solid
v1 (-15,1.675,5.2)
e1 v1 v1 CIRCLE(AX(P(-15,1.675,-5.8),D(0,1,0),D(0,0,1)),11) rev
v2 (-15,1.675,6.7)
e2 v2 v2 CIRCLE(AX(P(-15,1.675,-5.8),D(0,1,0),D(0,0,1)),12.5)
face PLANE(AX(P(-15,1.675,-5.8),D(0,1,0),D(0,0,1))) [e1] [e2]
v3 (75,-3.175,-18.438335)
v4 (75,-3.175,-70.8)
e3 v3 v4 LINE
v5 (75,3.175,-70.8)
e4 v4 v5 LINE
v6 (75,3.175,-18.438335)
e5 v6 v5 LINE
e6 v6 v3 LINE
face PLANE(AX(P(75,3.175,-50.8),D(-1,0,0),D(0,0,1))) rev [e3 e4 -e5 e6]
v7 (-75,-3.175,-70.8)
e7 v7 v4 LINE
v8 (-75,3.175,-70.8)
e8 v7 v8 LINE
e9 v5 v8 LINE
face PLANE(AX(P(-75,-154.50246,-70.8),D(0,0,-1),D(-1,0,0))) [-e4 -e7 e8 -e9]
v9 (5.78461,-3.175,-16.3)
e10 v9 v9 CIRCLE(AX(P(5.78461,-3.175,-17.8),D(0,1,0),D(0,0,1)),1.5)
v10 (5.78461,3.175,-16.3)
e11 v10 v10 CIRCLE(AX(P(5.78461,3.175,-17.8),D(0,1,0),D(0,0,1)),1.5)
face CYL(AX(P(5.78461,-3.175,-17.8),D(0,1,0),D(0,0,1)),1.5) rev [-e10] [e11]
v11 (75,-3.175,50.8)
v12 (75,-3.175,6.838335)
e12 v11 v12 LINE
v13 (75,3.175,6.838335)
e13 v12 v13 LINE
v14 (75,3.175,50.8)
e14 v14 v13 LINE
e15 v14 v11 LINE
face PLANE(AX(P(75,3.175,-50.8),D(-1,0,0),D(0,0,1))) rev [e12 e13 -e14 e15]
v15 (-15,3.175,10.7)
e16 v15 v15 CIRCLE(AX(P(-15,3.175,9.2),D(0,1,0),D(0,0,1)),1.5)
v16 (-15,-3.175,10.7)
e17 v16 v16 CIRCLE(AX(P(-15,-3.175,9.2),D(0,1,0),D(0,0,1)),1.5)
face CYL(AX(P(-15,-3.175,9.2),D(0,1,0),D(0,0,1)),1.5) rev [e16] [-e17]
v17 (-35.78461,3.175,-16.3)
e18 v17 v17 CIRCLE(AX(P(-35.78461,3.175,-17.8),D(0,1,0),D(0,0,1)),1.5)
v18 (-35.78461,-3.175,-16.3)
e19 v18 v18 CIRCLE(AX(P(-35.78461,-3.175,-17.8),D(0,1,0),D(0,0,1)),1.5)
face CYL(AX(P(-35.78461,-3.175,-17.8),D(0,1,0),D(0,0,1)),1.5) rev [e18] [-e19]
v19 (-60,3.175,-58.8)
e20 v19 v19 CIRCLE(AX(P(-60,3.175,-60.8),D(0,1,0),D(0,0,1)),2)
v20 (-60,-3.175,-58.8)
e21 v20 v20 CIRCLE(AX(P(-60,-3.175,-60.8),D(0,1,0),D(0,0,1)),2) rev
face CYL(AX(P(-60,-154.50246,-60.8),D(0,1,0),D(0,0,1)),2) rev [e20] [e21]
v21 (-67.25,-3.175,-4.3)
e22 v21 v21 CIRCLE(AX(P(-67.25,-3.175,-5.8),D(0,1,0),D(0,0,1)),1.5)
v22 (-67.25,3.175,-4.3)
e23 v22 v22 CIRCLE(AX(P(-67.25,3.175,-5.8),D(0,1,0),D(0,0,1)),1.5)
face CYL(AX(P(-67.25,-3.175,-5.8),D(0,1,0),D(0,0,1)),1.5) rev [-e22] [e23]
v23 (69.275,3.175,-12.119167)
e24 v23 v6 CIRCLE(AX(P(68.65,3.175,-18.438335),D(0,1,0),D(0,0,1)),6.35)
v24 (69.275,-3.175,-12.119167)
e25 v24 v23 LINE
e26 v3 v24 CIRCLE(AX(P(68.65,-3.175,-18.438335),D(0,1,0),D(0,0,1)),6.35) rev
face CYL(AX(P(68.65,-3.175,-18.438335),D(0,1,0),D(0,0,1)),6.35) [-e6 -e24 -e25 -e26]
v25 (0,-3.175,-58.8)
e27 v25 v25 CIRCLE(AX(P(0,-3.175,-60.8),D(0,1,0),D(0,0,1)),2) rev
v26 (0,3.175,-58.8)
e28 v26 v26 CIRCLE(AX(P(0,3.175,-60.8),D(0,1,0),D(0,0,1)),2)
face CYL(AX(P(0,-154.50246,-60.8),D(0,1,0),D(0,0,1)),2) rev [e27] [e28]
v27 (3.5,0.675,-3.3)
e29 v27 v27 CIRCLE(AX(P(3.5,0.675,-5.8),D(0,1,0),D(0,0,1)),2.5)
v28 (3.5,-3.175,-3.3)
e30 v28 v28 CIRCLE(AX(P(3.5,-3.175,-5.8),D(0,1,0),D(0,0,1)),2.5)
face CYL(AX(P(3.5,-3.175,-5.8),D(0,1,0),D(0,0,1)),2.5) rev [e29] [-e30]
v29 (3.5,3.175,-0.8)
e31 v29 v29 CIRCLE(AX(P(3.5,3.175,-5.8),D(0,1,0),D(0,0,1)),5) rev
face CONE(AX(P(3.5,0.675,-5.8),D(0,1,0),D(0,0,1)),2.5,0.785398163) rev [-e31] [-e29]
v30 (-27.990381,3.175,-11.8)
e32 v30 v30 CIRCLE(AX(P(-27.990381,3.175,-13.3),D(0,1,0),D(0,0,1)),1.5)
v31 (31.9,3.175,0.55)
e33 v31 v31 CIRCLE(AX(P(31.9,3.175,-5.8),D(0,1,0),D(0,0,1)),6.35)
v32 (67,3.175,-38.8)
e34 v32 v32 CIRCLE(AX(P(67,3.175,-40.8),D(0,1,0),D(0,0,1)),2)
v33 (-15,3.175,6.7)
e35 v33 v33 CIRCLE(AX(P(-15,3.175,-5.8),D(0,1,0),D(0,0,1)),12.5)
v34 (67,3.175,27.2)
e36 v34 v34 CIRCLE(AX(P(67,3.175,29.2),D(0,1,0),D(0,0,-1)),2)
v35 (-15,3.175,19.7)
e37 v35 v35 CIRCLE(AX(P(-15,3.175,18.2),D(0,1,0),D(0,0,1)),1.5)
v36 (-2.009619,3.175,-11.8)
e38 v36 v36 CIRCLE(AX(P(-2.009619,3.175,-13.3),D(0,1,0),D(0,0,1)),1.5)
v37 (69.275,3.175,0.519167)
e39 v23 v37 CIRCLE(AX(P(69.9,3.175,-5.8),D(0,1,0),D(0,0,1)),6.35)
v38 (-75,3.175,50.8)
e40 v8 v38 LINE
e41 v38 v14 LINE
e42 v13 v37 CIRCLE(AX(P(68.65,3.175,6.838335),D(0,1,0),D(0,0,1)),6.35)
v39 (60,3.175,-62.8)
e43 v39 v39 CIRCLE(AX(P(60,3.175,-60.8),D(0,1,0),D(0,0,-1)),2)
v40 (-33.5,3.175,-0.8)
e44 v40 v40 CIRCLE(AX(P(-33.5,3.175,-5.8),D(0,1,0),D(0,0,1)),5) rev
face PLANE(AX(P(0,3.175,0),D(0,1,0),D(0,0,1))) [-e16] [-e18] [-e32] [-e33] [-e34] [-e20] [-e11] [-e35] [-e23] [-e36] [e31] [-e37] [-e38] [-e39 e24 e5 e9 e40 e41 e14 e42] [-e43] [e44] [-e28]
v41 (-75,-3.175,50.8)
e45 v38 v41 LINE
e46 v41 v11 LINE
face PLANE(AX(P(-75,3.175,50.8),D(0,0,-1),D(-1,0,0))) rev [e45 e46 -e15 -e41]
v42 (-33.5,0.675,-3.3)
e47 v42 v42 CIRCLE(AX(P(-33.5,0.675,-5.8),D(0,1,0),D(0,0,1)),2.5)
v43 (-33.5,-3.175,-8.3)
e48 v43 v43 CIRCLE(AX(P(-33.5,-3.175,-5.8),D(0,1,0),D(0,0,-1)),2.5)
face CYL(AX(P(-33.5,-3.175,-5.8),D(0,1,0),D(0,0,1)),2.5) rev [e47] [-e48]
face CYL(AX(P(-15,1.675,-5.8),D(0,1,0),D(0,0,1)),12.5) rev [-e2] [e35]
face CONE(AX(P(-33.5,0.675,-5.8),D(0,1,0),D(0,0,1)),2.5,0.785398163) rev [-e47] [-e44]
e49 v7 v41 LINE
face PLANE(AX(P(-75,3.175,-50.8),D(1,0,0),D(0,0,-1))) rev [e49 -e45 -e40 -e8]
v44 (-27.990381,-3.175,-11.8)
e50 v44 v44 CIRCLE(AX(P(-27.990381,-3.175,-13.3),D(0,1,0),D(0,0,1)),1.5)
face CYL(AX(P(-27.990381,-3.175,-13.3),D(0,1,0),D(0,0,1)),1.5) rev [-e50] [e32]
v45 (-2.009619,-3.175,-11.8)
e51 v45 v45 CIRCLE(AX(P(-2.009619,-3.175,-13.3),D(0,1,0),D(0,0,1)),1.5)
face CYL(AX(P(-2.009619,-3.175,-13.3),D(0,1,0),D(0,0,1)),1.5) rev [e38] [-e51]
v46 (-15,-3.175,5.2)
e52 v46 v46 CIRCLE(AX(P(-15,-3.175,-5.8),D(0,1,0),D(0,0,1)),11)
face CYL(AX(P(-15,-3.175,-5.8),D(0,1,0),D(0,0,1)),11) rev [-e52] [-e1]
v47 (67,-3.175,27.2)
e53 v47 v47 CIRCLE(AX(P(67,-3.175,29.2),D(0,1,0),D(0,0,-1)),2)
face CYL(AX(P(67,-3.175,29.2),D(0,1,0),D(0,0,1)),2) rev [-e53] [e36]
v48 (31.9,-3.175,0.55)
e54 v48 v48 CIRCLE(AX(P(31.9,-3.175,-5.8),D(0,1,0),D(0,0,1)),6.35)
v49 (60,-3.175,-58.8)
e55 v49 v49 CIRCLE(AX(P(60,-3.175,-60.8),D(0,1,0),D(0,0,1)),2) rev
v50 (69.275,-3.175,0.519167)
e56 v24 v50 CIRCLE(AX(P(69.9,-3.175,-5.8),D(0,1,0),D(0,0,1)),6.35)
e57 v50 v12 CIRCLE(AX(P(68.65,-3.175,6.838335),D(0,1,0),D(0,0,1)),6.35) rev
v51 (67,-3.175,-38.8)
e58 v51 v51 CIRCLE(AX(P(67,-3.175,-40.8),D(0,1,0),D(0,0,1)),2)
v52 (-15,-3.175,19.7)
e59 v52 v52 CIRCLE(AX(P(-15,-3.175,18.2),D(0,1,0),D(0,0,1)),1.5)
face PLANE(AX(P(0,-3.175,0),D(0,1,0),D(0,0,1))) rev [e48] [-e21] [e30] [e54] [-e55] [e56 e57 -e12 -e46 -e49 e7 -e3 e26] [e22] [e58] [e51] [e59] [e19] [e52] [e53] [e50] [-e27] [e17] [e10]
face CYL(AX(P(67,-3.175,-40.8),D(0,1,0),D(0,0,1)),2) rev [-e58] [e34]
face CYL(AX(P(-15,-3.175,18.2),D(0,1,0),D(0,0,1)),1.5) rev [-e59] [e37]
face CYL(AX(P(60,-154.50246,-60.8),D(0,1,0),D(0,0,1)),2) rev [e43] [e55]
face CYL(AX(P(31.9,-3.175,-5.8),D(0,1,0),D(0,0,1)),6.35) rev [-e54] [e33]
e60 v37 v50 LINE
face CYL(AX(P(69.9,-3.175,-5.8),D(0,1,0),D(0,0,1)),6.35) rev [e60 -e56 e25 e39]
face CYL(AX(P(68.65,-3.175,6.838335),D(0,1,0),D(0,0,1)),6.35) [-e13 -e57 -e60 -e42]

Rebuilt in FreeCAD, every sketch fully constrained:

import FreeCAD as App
import Part
import Sketcher

V = App.Vector


def edges_at(feature, points):
    """Names of the edges that pass closest to the given points."""
    edges = feature.Shape.Edges
    near = lambda p: min(range(len(edges)), key=lambda i: edges[i].distToShape(Part.Vertex(*p))[0])
    return sorted({f"Edge{near(p) + 1}" for p in points})

doc = App.newDocument("Part")
body = doc.addObject("PartDesign::Body", "Body")

# Sketch on XZ plane
sketch1 = body.newObject("Sketcher::SketchObject", "Sketch")
sketch1.AttachmentSupport = (doc.getObject("XZ_Plane"), [""])
sketch1.MapMode = "FlatFace"
sketch1.addGeometry([
    Part.LineSegment(V(-75, -51, 0), V(-75, 51, 0)),
    Part.LineSegment(V(-75, 51, 0), V(75, 51, 0)),
    Part.LineSegment(V(75, 51, 0), V(75, -51, 0)),
    Part.LineSegment(V(75, -51, 0), V(-75, -51, 0)),
], False)
sketch1.addConstraint([
    Sketcher.Constraint("Coincident", 0, 2, 1, 1),
    Sketcher.Constraint("Coincident", 1, 2, 2, 1),
    Sketcher.Constraint("Coincident", 2, 2, 3, 1),
    Sketcher.Constraint("Coincident", 3, 2, 0, 1),
    Sketcher.Constraint("Vertical", 0),
    Sketcher.Constraint("Horizontal", 1),
    Sketcher.Constraint("Vertical", 2),
    Sketcher.Constraint("Horizontal", 3),
    Sketcher.Constraint("Symmetric", 0, 2, 2, 2, -1, 1),
    Sketcher.Constraint("DistanceX", 1, 1, 1, 2, 150.0),
    Sketcher.Constraint("DistanceY", 0, 1, 0, 2, 101.6),
])
pad1 = body.newObject("PartDesign::Pad", "Pad")
pad1.Profile = sketch1
pad1.Length = 6.35
pad1.Midplane = True

# Sketch on XZ plane
sketch2 = body.newObject("Sketcher::SketchObject", "Sketch001")
sketch2.AttachmentSupport = (doc.getObject("XZ_Plane"), [""])
sketch2.MapMode = "FlatFace"
sketch2.AttachmentOffset = App.Placement(V(0, 0, -3.175), App.Rotation())
sketch2.addGeometry([
    Part.Circle(V(67, -40.8, 0), V(0, 0, 1), 2),  # 0
    Part.Circle(V(67, 29.2, 0), V(0, 0, 1), 2),  # 1
    Part.Circle(V(-15, -5.8, 0), V(0, 0, 1), 11),  # 2
    Part.Circle(V(-67.2, -5.8, 0), V(0, 0, 1), 1.5),  # 3
    Part.Circle(V(31.9, -5.8, 0), V(0, 0, 1), 6.3),  # 4
    Part.Circle(V(69.9, -5.8, 0), V(0, 0, 1), 6.3),  # 5
], False)
sketch2.addConstraint([
    Sketcher.Constraint("Equal", 0, 1),
    Sketcher.Constraint("Equal", 4, 5),
    Sketcher.Constraint("Horizontal", 2, 3, 3, 3),
    Sketcher.Constraint("Horizontal", 3, 3, 4, 3),
    Sketcher.Constraint("Horizontal", 4, 3, 5, 3),
    Sketcher.Constraint("Vertical", 0, 3, 1, 3),
    Sketcher.Constraint("Diameter", 0, 4.0),
    Sketcher.Constraint("Diameter", 2, 22.0),
    Sketcher.Constraint("Diameter", 3, 3.0),
    Sketcher.Constraint("Diameter", 4, 12.7),
    Sketcher.Constraint("DistanceX", -1, 1, 0, 3, 67.0),
    Sketcher.Constraint("DistanceX", 2, 3, -1, 1, 15.0),
    Sketcher.Constraint("DistanceY", 0, 3, 1, 3, 70.0),
    Sketcher.Constraint("DistanceY", 0, 3, 2, 3, 35.0),
    Sketcher.Constraint("DistanceX", 4, 3, 5, 3, 38.0),
    Sketcher.Constraint("DistanceY", 0, 3, -1, 1, 40.8),
    Sketcher.Constraint("DistanceX", -1, 1, 4, 3, 31.9),
    Sketcher.Constraint("DistanceX", 3, 3, -1, 1, 67.25),
])
pocket1 = body.newObject("PartDesign::Pocket", "Pocket")
pocket1.Profile = sketch2
pocket1.Type = "ThroughAll"
pocket1.Reversed = True
doc.recompute()

fillet = body.newObject("PartDesign::Fillet", "Fillet")
fillet.Base = (pocket1, edges_at(pocket1, [(75, 0, -2.017), (75, 0, -9.583)]))
fillet.Radius = 6.35

# Sketch on XZ plane
sketch3 = body.newObject("Sketcher::SketchObject", "Sketch002")
sketch3.AttachmentSupport = (doc.getObject("XZ_Plane"), [""])
sketch3.MapMode = "FlatFace"
sketch3.AttachmentOffset = App.Placement(V(0, 0, -3.175), App.Rotation())
sketch3.addGeometry([
    Part.Circle(V(-15, 9.2, 0), V(0, 0, 1), 1.5),  # 0
    Part.Circle(V(-15, 18.2, 0), V(0, 0, 1), 1.5),  # 1
    Part.Circle(V(-28, -13.3, 0), V(0, 0, 1), 1.5),  # 2
    Part.Circle(V(-35.8, -17.8, 0), V(0, 0, 1), 1.5),  # 3
    Part.Circle(V(-2, -13.3, 0), V(0, 0, 1), 1.5),  # 4
    Part.Circle(V(5.8, -17.8, 0), V(0, 0, 1), 1.5),  # 5
], False)
sketch3.addConstraint([
    Sketcher.Constraint("Equal", 0, 1),
    Sketcher.Constraint("Equal", 1, 2),
    Sketcher.Constraint("Equal", 2, 3),
    Sketcher.Constraint("Equal", 3, 4),
    Sketcher.Constraint("Equal", 4, 5),
    Sketcher.Constraint("Horizontal", 2, 3, 4, 3),
    Sketcher.Constraint("Horizontal", 3, 3, 5, 3),
    Sketcher.Constraint("Vertical", 0, 3, 1, 3),
    Sketcher.Constraint("Diameter", 0, 3.0),
    Sketcher.Constraint("DistanceX", 0, 3, -1, 1, 15.0),
    Sketcher.Constraint("DistanceY", 0, 3, 1, 3, 9.0),
    Sketcher.Constraint("DistanceY", 3, 3, 0, 3, 27.0),
    Sketcher.Constraint("DistanceY", -1, 1, 0, 3, 9.2),
    Sketcher.Constraint("DistanceY", 2, 3, -1, 1, 13.3),
    Sketcher.Constraint("DistanceX", 2, 3, -1, 1, 27.990381),
    Sketcher.Constraint("DistanceX", 3, 3, -1, 1, 35.78461),
    Sketcher.Constraint("DistanceX", 4, 3, -1, 1, 2.009619),
    Sketcher.Constraint("DistanceX", -1, 1, 5, 3, 5.78461),
])
pocket2 = body.newObject("PartDesign::Pocket", "Pocket001")
pocket2.Profile = sketch3
pocket2.Type = "ThroughAll"
pocket2.Reversed = True

# Sketch on XZ plane
sketch4 = body.newObject("Sketcher::SketchObject", "Sketch003")
sketch4.AttachmentSupport = (doc.getObject("XZ_Plane"), [""])
sketch4.MapMode = "FlatFace"
sketch4.AttachmentOffset = App.Placement(V(0, 0, -3.175), App.Rotation())
sketch4.addGeometry(Part.Circle(V(-15, -6, 0), V(0, 0, 1), 12), False)
sketch4.addConstraint([
    Sketcher.Constraint("Diameter", 0, 25.0),
    Sketcher.Constraint("DistanceX", 0, 3, -1, 1, 15.0),
    Sketcher.Constraint("DistanceY", 0, 3, -1, 1, 5.8),
])
pocket3 = body.newObject("PartDesign::Pocket", "Pocket002")
pocket3.Profile = sketch4
pocket3.Length = 1.5
pocket3.Reversed = True

# Sketch on XZ plane
sketch5 = body.newObject("Sketcher::SketchObject", "Sketch004")
sketch5.AttachmentSupport = (doc.getObject("XZ_Plane"), [""])
sketch5.MapMode = "FlatFace"
sketch5.AttachmentOffset = App.Placement(V(0, 0, -3.175), App.Rotation())
sketch5.addGeometry([
    Part.Circle(V(3.5, -5.8, 0), V(0, 0, 1), 2.5),
    Part.Circle(V(-33.5, -5.8, 0), V(0, 0, 1), 2.5),
], False)
sketch5.addConstraint([
    Sketcher.Constraint("Equal", 0, 1),
    Sketcher.Constraint("Horizontal", 0, 3, 1, 3),
    Sketcher.Constraint("Diameter", 0, 5.0),
    Sketcher.Constraint("DistanceX", 1, 3, 0, 3, 37.0),
    Sketcher.Constraint("DistanceX", -1, 1, 0, 3, 3.5),
    Sketcher.Constraint("DistanceY", 0, 3, -1, 1, 5.8),
])
pocket4 = body.newObject("PartDesign::Pocket", "Pocket003")
pocket4.Profile = sketch5
pocket4.Type = "ThroughAll"
pocket4.Reversed = True
doc.recompute()

chamfer = body.newObject("PartDesign::Chamfer", "Chamfer")
chamfer.Base = (pocket4, edges_at(pocket4, [(3.5, 3.175, -8.3), (-33.5, 3.175, -3.3)]))
chamfer.Size = 2.5

# Sketch on XZ plane
sketch6 = body.newObject("Sketcher::SketchObject", "Sketch005")
sketch6.AttachmentSupport = (doc.getObject("XZ_Plane"), [""])
sketch6.MapMode = "FlatFace"
sketch6.AttachmentOffset = App.Placement(V(0, 0, -3.175), App.Rotation())
sketch6.addGeometry([
    Part.LineSegment(V(-75, -70.8, 0), V(-75, -50.8, 0)),  # 0
    Part.LineSegment(V(-75, -50.8, 0), V(75, -50.8, 0)),  # 1
    Part.LineSegment(V(75, -50.8, 0), V(75, -70.8, 0)),  # 2
    Part.LineSegment(V(75, -70.8, 0), V(-75, -70.8, 0)),  # 3
    Part.Circle(V(-60, -60.8, 0), V(0, 0, 1), 2),  # 4
    Part.Circle(V(0, -60.8, 0), V(0, 0, 1), 2),  # 5
    Part.Circle(V(60, -60.8, 0), V(0, 0, 1), 2),  # 6
], False)
sketch6.addConstraint([
    Sketcher.Constraint("Coincident", 0, 2, 1, 1),
    Sketcher.Constraint("Coincident", 1, 2, 2, 1),
    Sketcher.Constraint("Coincident", 2, 2, 3, 1),
    Sketcher.Constraint("Coincident", 3, 2, 0, 1),
    Sketcher.Constraint("Vertical", 0),
    Sketcher.Constraint("Horizontal", 1),
    Sketcher.Constraint("Vertical", 2),
    Sketcher.Constraint("Horizontal", 3),
    Sketcher.Constraint("Equal", 4, 5),
    Sketcher.Constraint("Equal", 5, 6),
    Sketcher.Constraint("Symmetric", 4, 3, 6, 3, -2),
    Sketcher.Constraint("PointOnObject", 5, 3, -2),
    Sketcher.Constraint("Horizontal", 4, 3, 5, 3),
    Sketcher.Constraint("Diameter", 4, 4.0),
    Sketcher.Constraint("DistanceX", 1, 1, 1, 2, 150.0),
    Sketcher.Constraint("DistanceY", 0, 1, 0, 2, 20.0),
    Sketcher.Constraint("DistanceX", 4, 3, -1, 1, 60.0),
    Sketcher.Constraint("DistanceX", 0, 2, -1, 1, 75.0),
    Sketcher.Constraint("DistanceY", 4, 3, 0, 2, 10.0),
    Sketcher.Constraint("DistanceY", 4, 3, -1, 1, 60.8),
])
pad2 = body.newObject("PartDesign::Pad", "Pad001")
pad2.Profile = sketch6
pad2.Length = 6.35

doc.recompute()
